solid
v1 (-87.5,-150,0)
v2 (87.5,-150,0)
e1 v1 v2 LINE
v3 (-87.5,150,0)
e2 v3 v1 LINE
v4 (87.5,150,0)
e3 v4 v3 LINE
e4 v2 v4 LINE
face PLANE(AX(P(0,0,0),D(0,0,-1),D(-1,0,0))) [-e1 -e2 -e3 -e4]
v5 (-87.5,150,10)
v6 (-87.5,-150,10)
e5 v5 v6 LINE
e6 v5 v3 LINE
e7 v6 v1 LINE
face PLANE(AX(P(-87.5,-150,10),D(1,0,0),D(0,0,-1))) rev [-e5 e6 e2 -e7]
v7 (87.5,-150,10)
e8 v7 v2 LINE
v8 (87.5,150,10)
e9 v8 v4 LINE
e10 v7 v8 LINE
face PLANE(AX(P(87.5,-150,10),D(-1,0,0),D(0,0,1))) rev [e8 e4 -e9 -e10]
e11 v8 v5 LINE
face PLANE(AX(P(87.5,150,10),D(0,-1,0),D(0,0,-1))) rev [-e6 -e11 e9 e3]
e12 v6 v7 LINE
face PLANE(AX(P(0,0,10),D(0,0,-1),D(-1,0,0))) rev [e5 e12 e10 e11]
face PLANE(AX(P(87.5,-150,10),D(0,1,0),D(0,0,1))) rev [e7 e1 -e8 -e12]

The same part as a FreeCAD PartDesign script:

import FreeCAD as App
import Part
import Sketcher
from FreeCAD import Vector


def add_polygon(sketch, points):
    """Adds a closed chain of lines whose ends are joined by coincident constraints."""
    first, n = sketch.GeometryCount, len(points)
    for a, b in zip(points, points[1:] + points[:1]):
        sketch.addGeometry(Part.LineSegment(App.Vector(*a, 0), App.Vector(*b, 0)), False)
    for i in range(n):
        sketch.addConstraint(Sketcher.Constraint("Coincident", first + i, 2, first + (i + 1) % n, 1))

doc = App.newDocument("Part")
params = doc.addObject("Spreadsheet::Sheet", "Params")
for row, (alias, value) in enumerate([
    ("sketch1_width", "175 mm"),
    ("sketch1_height", "300 mm"),
    ("pad1_length", "10 mm"),
], start=1):
    params.set(f"A{row}", alias)
    params.set(f"B{row}", "=" + value)
    params.setAlias(f"B{row}", alias)

body = doc.addObject("PartDesign::Body", "Body")

# Sketch on XY plane
sketch1 = body.newObject("Sketcher::SketchObject", "Sketch")
sketch1.AttachmentSupport = (doc.getObject("XY_Plane"), [""])
sketch1.MapMode = "FlatFace"
add_polygon(sketch1, [(-88, -150), (88, -150), (88, 150), (-88, 150)])  # lines 0-3
sketch1.addConstraint([
    Sketcher.Constraint("Horizontal", 0),
    Sketcher.Constraint("Vertical", 1),
    Sketcher.Constraint("Horizontal", 2),
    Sketcher.Constraint("Vertical", 3),
    Sketcher.Constraint("Symmetric", 0, 2, 2, 2, -1, 1),
    Sketcher.Constraint("DistanceX", 0, 1, 0, 2, 175.0),
    Sketcher.Constraint("DistanceY", 1, 1, 1, 2, 300.0),
])
sketch1.setExpression("Constraints[9]", "Params.sketch1_width")
sketch1.setExpression("Constraints[10]", "Params.sketch1_height")
pad1 = body.newObject("PartDesign::Pad", "Pad")
pad1.Profile = sketch1
pad1.setExpression("Length", "Params.pad1_length")

doc.recompute()
